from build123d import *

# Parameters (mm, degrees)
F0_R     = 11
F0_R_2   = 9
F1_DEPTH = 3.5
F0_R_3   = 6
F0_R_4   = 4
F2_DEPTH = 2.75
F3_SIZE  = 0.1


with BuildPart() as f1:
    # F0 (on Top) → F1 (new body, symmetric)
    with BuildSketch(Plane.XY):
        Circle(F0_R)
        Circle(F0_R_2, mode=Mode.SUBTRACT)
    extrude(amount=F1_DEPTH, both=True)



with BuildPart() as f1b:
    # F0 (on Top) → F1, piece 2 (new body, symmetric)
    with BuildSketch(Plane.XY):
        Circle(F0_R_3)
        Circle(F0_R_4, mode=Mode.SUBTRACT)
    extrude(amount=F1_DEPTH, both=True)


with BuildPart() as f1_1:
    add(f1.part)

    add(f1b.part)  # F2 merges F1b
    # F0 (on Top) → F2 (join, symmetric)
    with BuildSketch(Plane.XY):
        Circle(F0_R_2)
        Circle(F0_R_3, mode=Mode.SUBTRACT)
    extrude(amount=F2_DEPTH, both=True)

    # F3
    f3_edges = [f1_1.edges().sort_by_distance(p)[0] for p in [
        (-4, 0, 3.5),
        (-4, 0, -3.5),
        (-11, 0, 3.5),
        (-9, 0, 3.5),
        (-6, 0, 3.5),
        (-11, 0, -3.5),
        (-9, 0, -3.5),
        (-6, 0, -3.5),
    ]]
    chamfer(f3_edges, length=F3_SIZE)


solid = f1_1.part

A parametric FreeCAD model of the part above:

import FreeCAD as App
import Part
import Sketcher
from FreeCAD import Vector


def edges_at(feature, points):
    """Names of the edges that pass closest to the given points."""
    edges = feature.Shape.Edges
    near = lambda p: min(range(len(edges)), key=lambda i: edges[i].distToShape(Part.Vertex(*p))[0])
    return sorted({f"Edge{near(p) + 1}" for p in points})

doc = App.newDocument("Part")
params = doc.addObject("Spreadsheet::Sheet", "Params")
for row, (alias, value) in enumerate([
    ("sketch1_diameter", "22 mm"),
    ("sketch1_diameter2", "18 mm"),
    ("pad1_length", "7 mm"),
    ("sketch2_diameter", "12 mm"),
    ("sketch2_diameter2", "8 mm"),
    ("pad2_length", "7 mm"),
    ("sketch3_diameter", "18 mm"),
    ("sketch3_diameter2", "12 mm"),
    ("pad3_length", "5.5 mm"),
    ("chamfer_size", "0.1 mm"),
], start=1):
    params.set(f"A{row}", alias)
    params.set(f"B{row}", "=" + value)
    params.setAlias(f"B{row}", alias)

body = doc.addObject("PartDesign::Body", "Body")

# Sketch on XY plane
sketch1 = doc.addObject("Sketcher::SketchObject", "Sketch")
body.addObject(sketch1)
sketch1.AttachmentSupport = (doc.XY_Plane, [""])
sketch1.MapMode = "FlatFace"
sketch1.addGeometry(Part.Circle(Vector(0, 0, 0), Vector(0, 0, 1), 11), False)
sketch1.addGeometry(Part.Circle(Vector(0, 0, 0), Vector(0, 0, 1), 9), False)
sketch1.addConstraint(Sketcher.Constraint("Coincident", 0, 3, -1, 1))
sketch1.addConstraint(Sketcher.Constraint("Coincident", 1, 3, -1, 1))
sketch1.addConstraint(Sketcher.Constraint("Diameter", 0, 22.0))
sketch1.addConstraint(Sketcher.Constraint("Diameter", 1, 18.0))
sketch1.setExpression("Constraints[2]", "Params.sketch1_diameter")
sketch1.setExpression("Constraints[3]", "Params.sketch1_diameter2")
pad1 = doc.addObject("PartDesign::Pad", "Pad")
body.addObject(pad1)
pad1.Profile = sketch1
pad1.setExpression("Length", "Params.pad1_length")
pad1.Midplane = True
body2 = doc.addObject("PartDesign::Body", "Body001")

# Sketch on XY plane
sketch2 = doc.addObject("Sketcher::SketchObject", "Sketch001")
body2.addObject(sketch2)
sketch2.AttachmentSupport = (doc.getObject("XY_Plane001"), [""])
sketch2.MapMode = "FlatFace"
sketch2.addGeometry(Part.Circle(Vector(0, 0, 0), Vector(0, 0, 1), 6), False)
sketch2.addGeometry(Part.Circle(Vector(0, 0, 0), Vector(0, 0, 1), 4), False)
sketch2.addConstraint(Sketcher.Constraint("Coincident", 0, 3, -1, 1))
sketch2.addConstraint(Sketcher.Constraint("Coincident", 1, 3, -1, 1))
sketch2.addConstraint(Sketcher.Constraint("Diameter", 0, 12.0))
sketch2.addConstraint(Sketcher.Constraint("Diameter", 1, 8.0))
sketch2.setExpression("Constraints[2]", "Params.sketch2_diameter")
sketch2.setExpression("Constraints[3]", "Params.sketch2_diameter2")
pad2 = doc.addObject("PartDesign::Pad", "Pad001")
body2.addObject(pad2)
pad2.Profile = sketch2
pad2.setExpression("Length", "Params.pad2_length")
pad2.Midplane = True
body.AllowCompound = True
doc.recompute()

boolean = doc.addObject("PartDesign::Boolean", "Boolean")
body.addObject(boolean)
boolean.Type = "Fuse"
boolean.addObjects([body2])

# Sketch on XY plane
sketch3 = doc.addObject("Sketcher::SketchObject", "Sketch002")
body.addObject(sketch3)
sketch3.AttachmentSupport = (doc.XY_Plane, [""])
sketch3.MapMode = "FlatFace"
sketch3.addGeometry(Part.Circle(Vector(0, 0, 0), Vector(0, 0, 1), 9), False)
sketch3.addGeometry(Part.Circle(Vector(0, 0, 0), Vector(0, 0, 1), 6), False)
sketch3.addConstraint(Sketcher.Constraint("Coincident", 0, 3, -1, 1))
sketch3.addConstraint(Sketcher.Constraint("Coincident", 1, 3, -1, 1))
sketch3.addConstraint(Sketcher.Constraint("Diameter", 0, 18.0))
sketch3.addConstraint(Sketcher.Constraint("Diameter", 1, 12.0))
sketch3.setExpression("Constraints[2]", "Params.sketch3_diameter")
sketch3.setExpression("Constraints[3]", "Params.sketch3_diameter2")
pad3 = doc.addObject("PartDesign::Pad", "Pad002")
body.addObject(pad3)
pad3.Profile = sketch3
pad3.setExpression("Length", "Params.pad3_length")
pad3.Midplane = True
doc.recompute()

chamfer = doc.addObject("PartDesign::Chamfer", "Chamfer")
body.addObject(chamfer)
chamfer.Base = (pad3, edges_at(pad3, [
    (-4, 0, 3.5),
    (-4, 0, -3.5),
    (-11, 0, 3.5),
    (-9, 0, 3.5),
    (-6, 0, 3.5),
    (-11, 0, -3.5),
    (-9, 0, -3.5),
    (-6, 0, -3.5),
]))
chamfer.setExpression("Size", "Params.chamfer_size")

doc.recompute()
